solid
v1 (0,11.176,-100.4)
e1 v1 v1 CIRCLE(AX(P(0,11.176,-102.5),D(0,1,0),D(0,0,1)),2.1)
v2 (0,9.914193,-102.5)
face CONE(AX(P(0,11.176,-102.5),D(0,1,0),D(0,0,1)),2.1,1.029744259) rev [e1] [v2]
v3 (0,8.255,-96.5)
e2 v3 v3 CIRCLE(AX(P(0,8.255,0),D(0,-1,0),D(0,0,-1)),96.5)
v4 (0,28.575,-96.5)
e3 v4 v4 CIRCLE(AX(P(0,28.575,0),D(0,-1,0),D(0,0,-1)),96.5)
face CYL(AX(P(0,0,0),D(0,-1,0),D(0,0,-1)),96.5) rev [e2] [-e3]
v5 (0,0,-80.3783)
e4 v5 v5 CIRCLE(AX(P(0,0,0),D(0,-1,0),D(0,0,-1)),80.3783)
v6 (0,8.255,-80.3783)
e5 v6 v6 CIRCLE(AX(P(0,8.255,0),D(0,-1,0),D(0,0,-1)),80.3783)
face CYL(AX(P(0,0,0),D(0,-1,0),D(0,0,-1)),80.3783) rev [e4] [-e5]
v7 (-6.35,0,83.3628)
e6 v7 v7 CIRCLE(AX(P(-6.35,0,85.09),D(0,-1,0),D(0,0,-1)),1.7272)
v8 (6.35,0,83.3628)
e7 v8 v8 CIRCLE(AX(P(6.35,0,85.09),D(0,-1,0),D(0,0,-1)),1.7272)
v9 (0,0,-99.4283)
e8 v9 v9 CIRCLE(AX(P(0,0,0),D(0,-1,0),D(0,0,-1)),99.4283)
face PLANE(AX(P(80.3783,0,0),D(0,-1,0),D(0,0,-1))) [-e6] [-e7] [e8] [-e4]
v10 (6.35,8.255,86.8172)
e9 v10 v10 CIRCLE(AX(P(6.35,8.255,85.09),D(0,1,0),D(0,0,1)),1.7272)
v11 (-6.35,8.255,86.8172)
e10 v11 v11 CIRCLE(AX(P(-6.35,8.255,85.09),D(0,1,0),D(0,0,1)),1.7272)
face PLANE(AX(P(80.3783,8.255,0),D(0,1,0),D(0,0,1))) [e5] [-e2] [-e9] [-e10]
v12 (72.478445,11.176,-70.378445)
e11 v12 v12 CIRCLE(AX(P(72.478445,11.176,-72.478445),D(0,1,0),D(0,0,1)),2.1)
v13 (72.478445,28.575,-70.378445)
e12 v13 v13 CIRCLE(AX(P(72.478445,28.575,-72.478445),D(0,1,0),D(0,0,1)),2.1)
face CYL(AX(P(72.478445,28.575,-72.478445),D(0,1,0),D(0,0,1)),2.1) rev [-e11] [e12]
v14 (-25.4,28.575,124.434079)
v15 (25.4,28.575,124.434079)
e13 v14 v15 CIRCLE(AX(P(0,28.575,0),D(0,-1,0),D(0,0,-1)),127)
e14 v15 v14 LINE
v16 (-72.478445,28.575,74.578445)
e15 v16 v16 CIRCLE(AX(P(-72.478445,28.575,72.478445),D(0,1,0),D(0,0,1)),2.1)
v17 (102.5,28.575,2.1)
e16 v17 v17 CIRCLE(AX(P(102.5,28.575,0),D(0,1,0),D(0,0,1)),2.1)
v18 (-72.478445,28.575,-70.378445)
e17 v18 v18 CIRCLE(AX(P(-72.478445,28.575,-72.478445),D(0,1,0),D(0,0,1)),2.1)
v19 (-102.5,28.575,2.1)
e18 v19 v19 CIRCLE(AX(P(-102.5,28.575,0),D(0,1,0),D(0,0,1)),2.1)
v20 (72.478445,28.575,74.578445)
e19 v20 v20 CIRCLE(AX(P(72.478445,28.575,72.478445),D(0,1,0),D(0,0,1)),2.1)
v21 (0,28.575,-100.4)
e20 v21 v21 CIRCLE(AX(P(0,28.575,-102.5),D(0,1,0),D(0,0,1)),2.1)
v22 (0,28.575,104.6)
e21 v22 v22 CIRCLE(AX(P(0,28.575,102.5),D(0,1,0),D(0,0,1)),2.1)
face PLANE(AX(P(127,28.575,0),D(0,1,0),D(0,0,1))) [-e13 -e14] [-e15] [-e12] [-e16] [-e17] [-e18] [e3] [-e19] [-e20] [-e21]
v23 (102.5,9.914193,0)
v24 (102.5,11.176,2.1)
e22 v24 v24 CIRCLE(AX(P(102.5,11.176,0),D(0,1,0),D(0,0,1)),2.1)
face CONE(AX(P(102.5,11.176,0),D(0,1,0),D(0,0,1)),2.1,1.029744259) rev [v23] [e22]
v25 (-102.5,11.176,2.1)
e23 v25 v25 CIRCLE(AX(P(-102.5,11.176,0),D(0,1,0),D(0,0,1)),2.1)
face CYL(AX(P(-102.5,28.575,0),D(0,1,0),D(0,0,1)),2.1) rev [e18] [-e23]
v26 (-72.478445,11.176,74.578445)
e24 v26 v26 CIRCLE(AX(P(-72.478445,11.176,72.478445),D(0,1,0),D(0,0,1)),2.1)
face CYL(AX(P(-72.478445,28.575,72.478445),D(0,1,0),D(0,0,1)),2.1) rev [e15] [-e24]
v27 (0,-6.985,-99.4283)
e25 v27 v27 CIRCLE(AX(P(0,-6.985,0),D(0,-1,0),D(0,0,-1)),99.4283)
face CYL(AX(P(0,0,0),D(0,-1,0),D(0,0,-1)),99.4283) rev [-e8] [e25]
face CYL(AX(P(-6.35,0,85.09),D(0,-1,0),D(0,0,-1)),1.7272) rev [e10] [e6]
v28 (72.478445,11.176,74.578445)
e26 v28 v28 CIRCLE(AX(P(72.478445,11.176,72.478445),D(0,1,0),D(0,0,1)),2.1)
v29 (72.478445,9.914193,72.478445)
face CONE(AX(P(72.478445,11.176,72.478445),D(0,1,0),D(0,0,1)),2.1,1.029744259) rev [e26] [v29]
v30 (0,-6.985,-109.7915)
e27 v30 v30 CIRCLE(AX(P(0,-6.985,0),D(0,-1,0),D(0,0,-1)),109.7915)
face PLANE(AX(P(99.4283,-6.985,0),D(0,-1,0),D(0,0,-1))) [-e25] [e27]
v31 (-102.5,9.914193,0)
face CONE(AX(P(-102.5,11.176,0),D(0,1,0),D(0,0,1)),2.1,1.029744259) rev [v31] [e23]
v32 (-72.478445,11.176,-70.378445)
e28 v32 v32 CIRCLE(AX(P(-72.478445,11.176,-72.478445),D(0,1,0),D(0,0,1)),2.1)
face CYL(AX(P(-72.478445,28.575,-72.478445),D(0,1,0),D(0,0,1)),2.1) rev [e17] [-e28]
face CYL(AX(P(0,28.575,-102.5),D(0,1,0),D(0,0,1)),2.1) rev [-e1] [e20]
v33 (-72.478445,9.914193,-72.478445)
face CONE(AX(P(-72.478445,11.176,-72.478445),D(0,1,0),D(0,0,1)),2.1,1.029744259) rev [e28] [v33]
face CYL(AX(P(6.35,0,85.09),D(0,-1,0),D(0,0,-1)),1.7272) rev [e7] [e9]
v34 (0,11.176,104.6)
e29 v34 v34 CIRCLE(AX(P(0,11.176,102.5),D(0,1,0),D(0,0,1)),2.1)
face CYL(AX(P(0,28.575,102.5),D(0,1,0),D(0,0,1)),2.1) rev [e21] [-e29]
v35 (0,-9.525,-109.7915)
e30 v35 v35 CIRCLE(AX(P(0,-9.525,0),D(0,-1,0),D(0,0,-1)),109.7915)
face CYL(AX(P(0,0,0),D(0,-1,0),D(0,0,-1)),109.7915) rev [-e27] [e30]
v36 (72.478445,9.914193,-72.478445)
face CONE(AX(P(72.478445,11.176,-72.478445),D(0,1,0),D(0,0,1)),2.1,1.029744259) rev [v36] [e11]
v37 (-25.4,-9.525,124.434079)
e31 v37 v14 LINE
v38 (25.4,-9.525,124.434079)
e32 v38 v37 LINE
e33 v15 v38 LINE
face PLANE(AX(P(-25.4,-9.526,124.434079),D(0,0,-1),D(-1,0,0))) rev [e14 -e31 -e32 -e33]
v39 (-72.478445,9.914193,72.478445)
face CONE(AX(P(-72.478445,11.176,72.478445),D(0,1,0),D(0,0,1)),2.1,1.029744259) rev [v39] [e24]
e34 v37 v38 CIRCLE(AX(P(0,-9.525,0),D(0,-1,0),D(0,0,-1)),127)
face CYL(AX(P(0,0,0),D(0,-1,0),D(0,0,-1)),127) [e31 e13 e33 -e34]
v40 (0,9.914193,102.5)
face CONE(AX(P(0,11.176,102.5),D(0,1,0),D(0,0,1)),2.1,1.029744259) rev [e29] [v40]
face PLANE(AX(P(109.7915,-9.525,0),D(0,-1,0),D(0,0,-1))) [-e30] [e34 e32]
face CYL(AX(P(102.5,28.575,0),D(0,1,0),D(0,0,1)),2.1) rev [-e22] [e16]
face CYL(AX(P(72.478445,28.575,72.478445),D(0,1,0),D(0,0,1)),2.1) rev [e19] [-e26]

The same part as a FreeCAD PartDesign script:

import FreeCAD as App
import Part
import Sketcher

V = App.Vector
Q = App.Units.Quantity


def add_polygon(sketch, points):
    """Adds a closed chain of lines whose ends are joined by coincident constraints."""
    first, n = sketch.GeometryCount, len(points)
    for a, b in zip(points, points[1:] + points[:1]):
        sketch.addGeometry(Part.LineSegment(App.Vector(*a, 0), App.Vector(*b, 0)), False)
    for i in range(n):
        sketch.addConstraint(Sketcher.Constraint("Coincident", first + i, 2, first + (i + 1) % n, 1))

doc = App.newDocument("Part")
body = doc.addObject("PartDesign::Body", "Body")

sketch1 = body.newObject("Sketcher::SketchObject", "Sketch")
sketch1.AttachmentSupport = (doc.getObject("XY_Plane"), [""])
sketch1.MapMode = "FlatFace"
add_polygon(sketch1, [(80.4, 0), (99.4, 0), (99.4, -7), (109.8, -7), (109.8, -9.5), (127, -9.5), (127, 28.6), (96.5, 28.6), (96.5, 8.3), (80.4, 8.3)])
sketch1.addConstraint(Sketcher.Constraint("Horizontal", 0))
sketch1.addConstraint(Sketcher.Constraint("Vertical", 1))
sketch1.addConstraint(Sketcher.Constraint("Horizontal", 2))
sketch1.addConstraint(Sketcher.Constraint("Vertical", 3))
sketch1.addConstraint(Sketcher.Constraint("Horizontal", 4))
sketch1.addConstraint(Sketcher.Constraint("Vertical", 5))
sketch1.addConstraint(Sketcher.Constraint("Horizontal", 6))
sketch1.addConstraint(Sketcher.Constraint("Vertical", 7))
sketch1.addConstraint(Sketcher.Constraint("Horizontal", 8))
sketch1.addConstraint(Sketcher.Constraint("Vertical", 9))
sketch1.addConstraint(Sketcher.Constraint("PointOnObject", 0, 2, -1))
sketch1.addConstraint(Sketcher.Constraint("DistanceY", 3, 2, 3, 1, Q("0.1 in")))
sketch1.addConstraint(Sketcher.Constraint("DistanceY", 5, 1, 5, 2, Q("1.5 in")))
sketch1.addConstraint(Sketcher.Constraint("DistanceY", 7, 2, 7, 1, Q("0.8 in")))
sketch1.addConstraint(Sketcher.Constraint("DistanceX", -1, 1, 4, 2, Q("5 in")))
sketch1.addConstraint(Sketcher.Constraint("DistanceX", 0, 1, 0, 2, Q("0.75 in")))
sketch1.addConstraint(Sketcher.Constraint("DistanceX", 2, 1, 2, 2, Q("0.408 in")))
sketch1.addConstraint(Sketcher.Constraint("DistanceY", 1, 2, 1, 1, Q("0.275 in")))
sketch1.addConstraint(Sketcher.Constraint("DistanceX", 4, 1, 4, 2, Q("0.6775 in")))
sketch1.addConstraint(Sketcher.Constraint("DistanceX", 6, 2, 6, 1, Q("30.5 mm")))
revolution = body.newObject("PartDesign::Revolution", "Revolution")
revolution.Profile = sketch1
revolution.ReferenceAxis = (sketch1, ["V_Axis"])
revolution.Angle = 360

sketch2 = body.newObject("Sketcher::SketchObject", "Sketch001")
sketch2.AttachmentSupport = (doc.getObject("XZ_Plane"), [""])
sketch2.MapMode = "FlatFace"
sketch2.AttachmentOffset = App.Placement(V(0, 0, -1.125 * 25.4), App.Rotation())
sketch2.addGeometry(Part.Circle(V(0, -102.5, 0), V(0, 0, 1), 2.1), False)
sketch2.addGeometry(Part.Circle(V(72.5, -72.5, 0), V(0, 0, 1), 2.1), False)
sketch2.addGeometry(Part.Circle(V(102.5, 0, 0), V(0, 0, 1), 2.1), False)
sketch2.addGeometry(Part.Circle(V(72.5, 72.5, 0), V(0, 0, 1), 2.1), False)
sketch2.addGeometry(Part.Circle(V(0, 102.5, 0), V(0, 0, 1), 2.1), False)
sketch2.addGeometry(Part.Circle(V(-72.5, 72.5, 0), V(0, 0, 1), 2.1), False)
sketch2.addGeometry(Part.Circle(V(-102.5, 0, 0), V(0, 0, 1), 2.1), False)
sketch2.addGeometry(Part.Circle(V(-72.5, -72.5, 0), V(0, 0, 1), 2.1), False)
sketch2.addConstraint(Sketcher.Constraint("Equal", 0, 1))
sketch2.addConstraint(Sketcher.Constraint("Equal", 1, 2))
sketch2.addConstraint(Sketcher.Constraint("Equal", 2, 3))
sketch2.addConstraint(Sketcher.Constraint("Equal", 3, 4))
sketch2.addConstraint(Sketcher.Constraint("Equal", 4, 5))
sketch2.addConstraint(Sketcher.Constraint("Equal", 5, 6))
sketch2.addConstraint(Sketcher.Constraint("Equal", 6, 7))
sketch2.addConstraint(Sketcher.Constraint("Symmetric", 0, 3, 4, 3, -1, 1))
sketch2.addConstraint(Sketcher.Constraint("Symmetric", 1, 3, 5, 3, -1, 1))
sketch2.addConstraint(Sketcher.Constraint("Symmetric", 2, 3, 6, 3, -1, 1))
sketch2.addConstraint(Sketcher.Constraint("Symmetric", 3, 3, 7, 3, -1, 1))
sketch2.addConstraint(Sketcher.Constraint("Symmetric", 3, 3, 5, 3, -2))
sketch2.addConstraint(Sketcher.Constraint("PointOnObject", 0, 3, -2))
sketch2.addConstraint(Sketcher.Constraint("PointOnObject", 2, 3, -1))
sketch2.addConstraint(Sketcher.Constraint("Diameter", 0, Q("4.2 mm")))
sketch2.addConstraint(Sketcher.Constraint("DistanceY", 0, 3, -1, 1, Q("102.5 mm")))
sketch2.addConstraint(Sketcher.Constraint("DistanceX", -1, 1, 2, 3, Q("102.5 mm")))
sketch2.addConstraint(Sketcher.Constraint("DistanceY", 1, 3, 3, 3, Q("144.95689 mm")))
sketch2.addConstraint(Sketcher.Constraint("DistanceX", 5, 3, 3, 3, Q("144.95689 mm")))
doc.recompute()
hole = body.newObject("PartDesign::Hole", "Hole")
hole.Profile = sketch2
hole.ThreadType = "None"
hole.Diameter = 4.2
hole.DepthType = "Dimension"
hole.Depth = Q("0.685 in")
hole.DrillPoint = "Angled"
hole.DrillPointAngle = 118
hole.Reversed = True

sketch3 = body.newObject("Sketcher::SketchObject", "Sketch002")
sketch3.AttachmentSupport = (doc.getObject("XZ_Plane"), [""])
sketch3.MapMode = "FlatFace"
sketch3.AttachmentOffset = App.Placement(V(0, 0, -1.125 * 25.4), App.Rotation())
add_polygon(sketch3, [(-25.4, 124.4), (-25.4, 127), (25.4, 127), (25.4, 124.4)])
sketch3.addConstraint(Sketcher.Constraint("Vertical", 0))
sketch3.addConstraint(Sketcher.Constraint("Horizontal", 1))
sketch3.addConstraint(Sketcher.Constraint("Vertical", 2))
sketch3.addConstraint(Sketcher.Constraint("Horizontal", 3))
sketch3.addConstraint(Sketcher.Constraint("DistanceX", 1, 1, 1, 2, Q("2 in")))
sketch3.addConstraint(Sketcher.Constraint("DistanceX", 0, 2, -1, 1, Q("1 in")))
sketch3.addConstraint(Sketcher.Constraint("DistanceY", -1, 1, 0, 2, Q("5 in")))
sketch3.addConstraint(Sketcher.Constraint("DistanceY", 0, 1, 0, 2, Q("2.565921 mm")))
pocket1 = body.newObject("PartDesign::Pocket", "Pocket")
pocket1.Profile = sketch3
pocket1.Type = "UpToFirst"
pocket1.Reversed = True

sketch4 = body.newObject("Sketcher::SketchObject", "Sketch003")
sketch4.AttachmentSupport = (doc.getObject("XZ_Plane"), [""])
sketch4.MapMode = "FlatFace"
sketch4.addGeometry(Part.Circle(V(6.3, 85.1, 0), V(0, 0, 1), 1.7), False)
sketch4.addGeometry(Part.Circle(V(-6.3, 85.1, 0), V(0, 0, 1), 1.7), False)
sketch4.addConstraint(Sketcher.Constraint("Equal", 0, 1))
sketch4.addConstraint(Sketcher.Constraint("Symmetric", 0, 3, 1, 3, -2))
sketch4.addConstraint(Sketcher.Constraint("Diameter", 0, Q("0.136 in")))
sketch4.addConstraint(Sketcher.Constraint("DistanceX", 1, 3, 0, 3, Q("0.5 in")))
sketch4.addConstraint(Sketcher.Constraint("DistanceY", -1, 1, 0, 3, Q("3.35 in")))
doc.recompute()
hole2 = body.newObject("PartDesign::Hole", "Hole001")
hole2.Profile = sketch4
hole2.ThreadType = "None"
hole2.Diameter = Q("0.136 in")
hole2.DepthType = "ThroughAll"

doc.recompute()
